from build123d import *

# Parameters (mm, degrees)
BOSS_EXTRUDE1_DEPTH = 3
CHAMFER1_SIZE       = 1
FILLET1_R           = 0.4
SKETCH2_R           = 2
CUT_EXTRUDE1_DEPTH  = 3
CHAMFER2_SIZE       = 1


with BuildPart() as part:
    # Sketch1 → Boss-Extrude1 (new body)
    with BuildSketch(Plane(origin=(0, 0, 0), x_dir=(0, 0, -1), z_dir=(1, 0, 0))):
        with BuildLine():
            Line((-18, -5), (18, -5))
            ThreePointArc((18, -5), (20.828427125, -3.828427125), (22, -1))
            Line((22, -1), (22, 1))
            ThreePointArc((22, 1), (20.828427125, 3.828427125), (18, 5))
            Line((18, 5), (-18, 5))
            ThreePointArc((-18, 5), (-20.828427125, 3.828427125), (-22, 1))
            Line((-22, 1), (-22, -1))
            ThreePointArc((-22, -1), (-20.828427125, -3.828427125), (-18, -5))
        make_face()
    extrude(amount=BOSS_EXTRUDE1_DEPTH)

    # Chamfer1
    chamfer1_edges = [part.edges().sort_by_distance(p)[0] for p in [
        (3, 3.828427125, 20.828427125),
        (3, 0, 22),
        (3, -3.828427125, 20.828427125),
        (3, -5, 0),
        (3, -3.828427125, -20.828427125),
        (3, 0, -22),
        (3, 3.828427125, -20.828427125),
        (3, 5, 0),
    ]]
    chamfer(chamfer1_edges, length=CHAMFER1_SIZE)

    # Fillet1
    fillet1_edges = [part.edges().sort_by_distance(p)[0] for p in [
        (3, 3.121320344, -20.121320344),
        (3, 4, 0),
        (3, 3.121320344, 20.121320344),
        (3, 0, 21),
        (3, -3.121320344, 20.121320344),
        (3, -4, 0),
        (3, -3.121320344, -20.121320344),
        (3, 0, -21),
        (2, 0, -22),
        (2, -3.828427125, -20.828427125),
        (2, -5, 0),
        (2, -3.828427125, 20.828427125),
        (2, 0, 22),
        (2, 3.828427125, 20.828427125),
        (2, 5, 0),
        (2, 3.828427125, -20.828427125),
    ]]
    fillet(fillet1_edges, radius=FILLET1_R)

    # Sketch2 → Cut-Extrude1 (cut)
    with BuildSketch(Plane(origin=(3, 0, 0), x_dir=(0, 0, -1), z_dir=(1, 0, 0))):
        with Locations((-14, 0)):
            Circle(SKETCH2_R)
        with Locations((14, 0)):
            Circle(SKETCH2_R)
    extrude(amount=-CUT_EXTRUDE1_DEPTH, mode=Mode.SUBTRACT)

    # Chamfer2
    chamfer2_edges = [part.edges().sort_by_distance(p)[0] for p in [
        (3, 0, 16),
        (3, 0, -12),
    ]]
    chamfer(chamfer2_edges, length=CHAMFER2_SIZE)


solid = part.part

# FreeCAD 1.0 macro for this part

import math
import FreeCAD as App
import Part
import Sketcher
from FreeCAD import Vector
Q = App.Units.Quantity


def edges_at(feature, points):
    """Names of the edges that pass closest to the given points."""
    edges = feature.Shape.Edges
    near = lambda p: min(range(len(edges)), key=lambda i: edges[i].distToShape(Part.Vertex(*p))[0])
    return sorted({f"Edge{near(p) + 1}" for p in points})

doc = App.newDocument("Part")
params = doc.addObject("Spreadsheet::Sheet", "Params")
for row, (alias, value) in enumerate([
    ("sketch1_radius", "4 mm"),
    ("sketch1_width", "2 mm"),
    ("sketch1_height", "36 mm"),
    ("pad1_length", "3 mm"),
    ("chamfer_size", "1 mm"),
    ("fillet_radius", "0.4 mm"),
    ("sketch2_diameter", "4 mm"),
    ("pocket1_length", "3 mm"),
    ("chamfer2_size", "1 mm"),
], start=1):
    params.set(f"A{row}", alias)
    params.set(f"B{row}", "=" + value)
    params.setAlias(f"B{row}", alias)

body = doc.addObject("PartDesign::Body", "Body")

# Sketch on YZ plane
sketch1 = body.newObject("Sketcher::SketchObject", "Sketch")
sketch1.AttachmentSupport = (doc.getObject("YZ_Plane"), [""])
sketch1.MapMode = "FlatFace"
sketch1.addGeometry(Part.LineSegment(Vector(-5, 18, 0), Vector(-5, -18, 0)), False)
sketch1.addGeometry(Part.ArcOfCircle(Part.Circle(Vector(-1, -18, 0), Vector(0, 0, 1), 4), math.radians(180), math.radians(270)), False)
sketch1.addGeometry(Part.LineSegment(Vector(-1, -22, 0), Vector(1, -22, 0)), False)
sketch1.addGeometry(Part.ArcOfCircle(Part.Circle(Vector(1, -18, 0), Vector(0, 0, 1), 4), math.radians(-90), math.radians(0)), False)
sketch1.addGeometry(Part.LineSegment(Vector(5, -18, 0), Vector(5, 18, 0)), False)
sketch1.addGeometry(Part.ArcOfCircle(Part.Circle(Vector(1, 18, 0), Vector(0, 0, 1), 4), math.radians(0), math.radians(90)), False)
sketch1.addGeometry(Part.LineSegment(Vector(1, 22, 0), Vector(-1, 22, 0)), False)
sketch1.addGeometry(Part.ArcOfCircle(Part.Circle(Vector(-1, 18, 0), Vector(0, 0, 1), 4), math.radians(90), math.radians(180)), False)
sketch1.addConstraint(Sketcher.Constraint("Tangent", 0, 2, 1, 1))
sketch1.addConstraint(Sketcher.Constraint("Tangent", 1, 2, 2, 1))
sketch1.addConstraint(Sketcher.Constraint("Tangent", 2, 2, 3, 1))
sketch1.addConstraint(Sketcher.Constraint("Tangent", 3, 2, 4, 1))
sketch1.addConstraint(Sketcher.Constraint("Tangent", 4, 2, 5, 1))
sketch1.addConstraint(Sketcher.Constraint("Tangent", 5, 2, 6, 1))
sketch1.addConstraint(Sketcher.Constraint("Tangent", 6, 2, 7, 1))
sketch1.addConstraint(Sketcher.Constraint("Tangent", 7, 2, 0, 1))
sketch1.addConstraint(Sketcher.Constraint("Vertical", 0))
sketch1.addConstraint(Sketcher.Constraint("Horizontal", 2))
sketch1.addConstraint(Sketcher.Constraint("Vertical", 4))
sketch1.addConstraint(Sketcher.Constraint("Horizontal", 6))
sketch1.addConstraint(Sketcher.Constraint("Equal", 1, 3))
sketch1.addConstraint(Sketcher.Constraint("Equal", 3, 5))
sketch1.addConstraint(Sketcher.Constraint("Equal", 5, 7))
sketch1.addConstraint(Sketcher.Constraint("Symmetric", 1, 3, 5, 3, -1, 1))
sketch1.addConstraint(Sketcher.Constraint("Radius", 1, Q("4 mm")))
sketch1.addConstraint(Sketcher.Constraint("DistanceX", 2, 1, 2, 2, Q("2 mm")))
sketch1.addConstraint(Sketcher.Constraint("DistanceY", 0, 2, 0, 1, Q("36 mm")))
sketch1.setExpression("Constraints[16]", "Params.sketch1_radius")
sketch1.setExpression("Constraints[17]", "Params.sketch1_width")
sketch1.setExpression("Constraints[18]", "Params.sketch1_height")
pad1 = body.newObject("PartDesign::Pad", "Pad")
pad1.Profile = sketch1
pad1.setExpression("Length", "Params.pad1_length")
doc.recompute()

chamfer = body.newObject("PartDesign::Chamfer", "Chamfer")
chamfer.Base = (pad1, edges_at(pad1, [
    (3, 3.828, 20.828),
    (3, 0, 22),
    (3, -3.828, 20.828),
    (3, -5, 0),
    (3, -3.828, -20.828),
    (3, 0, -22),
    (3, 3.828, -20.828),
    (3, 5, 0),
]))
chamfer.setExpression("Size", "Params.chamfer_size")
doc.recompute()

fillet = body.newObject("PartDesign::Fillet", "Fillet")
fillet.Base = (chamfer, edges_at(chamfer, [
    (3, 3.121, -20.121),
    (3, 4, 0),
    (3, 3.121, 20.121),
    (3, 0, 21),
    (3, -3.121, 20.121),
    (3, -4, 0),
    (3, -3.121, -20.121),
    (3, 0, -21),
    (2, 0, -22),
    (2, -3.828, -20.828),
    (2, -5, 0),
    (2, -3.828, 20.828),
    (2, 0, 22),
    (2, 3.828, 20.828),
    (2, 5, 0),
    (2, 3.828, -20.828),
]))
fillet.setExpression("Radius", "Params.fillet_radius")

# Sketch on YZ plane
sketch2 = body.newObject("Sketcher::SketchObject", "Sketch001")
sketch2.AttachmentSupport = (doc.getObject("YZ_Plane"), [""])
sketch2.MapMode = "FlatFace"
sketch2.AttachmentOffset = App.Placement(Vector(0, 0, 3), App.Rotation())
sketch2.addGeometry(Part.Circle(Vector(0, 14, 0), Vector(0, 0, 1), 2), False)
sketch2.addGeometry(Part.Circle(Vector(0, -14, 0), Vector(0, 0, 1), 2), False)
sketch2.addConstraint(Sketcher.Constraint("Equal", 0, 1))
sketch2.addConstraint(Sketcher.Constraint("Symmetric", 0, 3, 1, 3, -1, 1))
sketch2.addConstraint(Sketcher.Constraint("PointOnObject", 0, 3, -2))
sketch2.addConstraint(Sketcher.Constraint("Diameter", 0, Q("4 mm")))
sketch2.addConstraint(Sketcher.Constraint("DistanceY", -1, 1, 0, 3, Q("14 mm")))
sketch2.setExpression("Constraints[3]", "Params.sketch2_diameter")
pocket1 = body.newObject("PartDesign::Pocket", "Pocket")
pocket1.Profile = sketch2
pocket1.setExpression("Length", "Params.pocket1_length")
doc.recompute()

chamfer2 = body.newObject("PartDesign::Chamfer", "Chamfer001")
chamfer2.Base = (pocket1, edges_at(pocket1, [(3, 0, 16), (3, 0, -12)]))
chamfer2.setExpression("Size", "Params.chamfer2_size")

doc.recompute()
